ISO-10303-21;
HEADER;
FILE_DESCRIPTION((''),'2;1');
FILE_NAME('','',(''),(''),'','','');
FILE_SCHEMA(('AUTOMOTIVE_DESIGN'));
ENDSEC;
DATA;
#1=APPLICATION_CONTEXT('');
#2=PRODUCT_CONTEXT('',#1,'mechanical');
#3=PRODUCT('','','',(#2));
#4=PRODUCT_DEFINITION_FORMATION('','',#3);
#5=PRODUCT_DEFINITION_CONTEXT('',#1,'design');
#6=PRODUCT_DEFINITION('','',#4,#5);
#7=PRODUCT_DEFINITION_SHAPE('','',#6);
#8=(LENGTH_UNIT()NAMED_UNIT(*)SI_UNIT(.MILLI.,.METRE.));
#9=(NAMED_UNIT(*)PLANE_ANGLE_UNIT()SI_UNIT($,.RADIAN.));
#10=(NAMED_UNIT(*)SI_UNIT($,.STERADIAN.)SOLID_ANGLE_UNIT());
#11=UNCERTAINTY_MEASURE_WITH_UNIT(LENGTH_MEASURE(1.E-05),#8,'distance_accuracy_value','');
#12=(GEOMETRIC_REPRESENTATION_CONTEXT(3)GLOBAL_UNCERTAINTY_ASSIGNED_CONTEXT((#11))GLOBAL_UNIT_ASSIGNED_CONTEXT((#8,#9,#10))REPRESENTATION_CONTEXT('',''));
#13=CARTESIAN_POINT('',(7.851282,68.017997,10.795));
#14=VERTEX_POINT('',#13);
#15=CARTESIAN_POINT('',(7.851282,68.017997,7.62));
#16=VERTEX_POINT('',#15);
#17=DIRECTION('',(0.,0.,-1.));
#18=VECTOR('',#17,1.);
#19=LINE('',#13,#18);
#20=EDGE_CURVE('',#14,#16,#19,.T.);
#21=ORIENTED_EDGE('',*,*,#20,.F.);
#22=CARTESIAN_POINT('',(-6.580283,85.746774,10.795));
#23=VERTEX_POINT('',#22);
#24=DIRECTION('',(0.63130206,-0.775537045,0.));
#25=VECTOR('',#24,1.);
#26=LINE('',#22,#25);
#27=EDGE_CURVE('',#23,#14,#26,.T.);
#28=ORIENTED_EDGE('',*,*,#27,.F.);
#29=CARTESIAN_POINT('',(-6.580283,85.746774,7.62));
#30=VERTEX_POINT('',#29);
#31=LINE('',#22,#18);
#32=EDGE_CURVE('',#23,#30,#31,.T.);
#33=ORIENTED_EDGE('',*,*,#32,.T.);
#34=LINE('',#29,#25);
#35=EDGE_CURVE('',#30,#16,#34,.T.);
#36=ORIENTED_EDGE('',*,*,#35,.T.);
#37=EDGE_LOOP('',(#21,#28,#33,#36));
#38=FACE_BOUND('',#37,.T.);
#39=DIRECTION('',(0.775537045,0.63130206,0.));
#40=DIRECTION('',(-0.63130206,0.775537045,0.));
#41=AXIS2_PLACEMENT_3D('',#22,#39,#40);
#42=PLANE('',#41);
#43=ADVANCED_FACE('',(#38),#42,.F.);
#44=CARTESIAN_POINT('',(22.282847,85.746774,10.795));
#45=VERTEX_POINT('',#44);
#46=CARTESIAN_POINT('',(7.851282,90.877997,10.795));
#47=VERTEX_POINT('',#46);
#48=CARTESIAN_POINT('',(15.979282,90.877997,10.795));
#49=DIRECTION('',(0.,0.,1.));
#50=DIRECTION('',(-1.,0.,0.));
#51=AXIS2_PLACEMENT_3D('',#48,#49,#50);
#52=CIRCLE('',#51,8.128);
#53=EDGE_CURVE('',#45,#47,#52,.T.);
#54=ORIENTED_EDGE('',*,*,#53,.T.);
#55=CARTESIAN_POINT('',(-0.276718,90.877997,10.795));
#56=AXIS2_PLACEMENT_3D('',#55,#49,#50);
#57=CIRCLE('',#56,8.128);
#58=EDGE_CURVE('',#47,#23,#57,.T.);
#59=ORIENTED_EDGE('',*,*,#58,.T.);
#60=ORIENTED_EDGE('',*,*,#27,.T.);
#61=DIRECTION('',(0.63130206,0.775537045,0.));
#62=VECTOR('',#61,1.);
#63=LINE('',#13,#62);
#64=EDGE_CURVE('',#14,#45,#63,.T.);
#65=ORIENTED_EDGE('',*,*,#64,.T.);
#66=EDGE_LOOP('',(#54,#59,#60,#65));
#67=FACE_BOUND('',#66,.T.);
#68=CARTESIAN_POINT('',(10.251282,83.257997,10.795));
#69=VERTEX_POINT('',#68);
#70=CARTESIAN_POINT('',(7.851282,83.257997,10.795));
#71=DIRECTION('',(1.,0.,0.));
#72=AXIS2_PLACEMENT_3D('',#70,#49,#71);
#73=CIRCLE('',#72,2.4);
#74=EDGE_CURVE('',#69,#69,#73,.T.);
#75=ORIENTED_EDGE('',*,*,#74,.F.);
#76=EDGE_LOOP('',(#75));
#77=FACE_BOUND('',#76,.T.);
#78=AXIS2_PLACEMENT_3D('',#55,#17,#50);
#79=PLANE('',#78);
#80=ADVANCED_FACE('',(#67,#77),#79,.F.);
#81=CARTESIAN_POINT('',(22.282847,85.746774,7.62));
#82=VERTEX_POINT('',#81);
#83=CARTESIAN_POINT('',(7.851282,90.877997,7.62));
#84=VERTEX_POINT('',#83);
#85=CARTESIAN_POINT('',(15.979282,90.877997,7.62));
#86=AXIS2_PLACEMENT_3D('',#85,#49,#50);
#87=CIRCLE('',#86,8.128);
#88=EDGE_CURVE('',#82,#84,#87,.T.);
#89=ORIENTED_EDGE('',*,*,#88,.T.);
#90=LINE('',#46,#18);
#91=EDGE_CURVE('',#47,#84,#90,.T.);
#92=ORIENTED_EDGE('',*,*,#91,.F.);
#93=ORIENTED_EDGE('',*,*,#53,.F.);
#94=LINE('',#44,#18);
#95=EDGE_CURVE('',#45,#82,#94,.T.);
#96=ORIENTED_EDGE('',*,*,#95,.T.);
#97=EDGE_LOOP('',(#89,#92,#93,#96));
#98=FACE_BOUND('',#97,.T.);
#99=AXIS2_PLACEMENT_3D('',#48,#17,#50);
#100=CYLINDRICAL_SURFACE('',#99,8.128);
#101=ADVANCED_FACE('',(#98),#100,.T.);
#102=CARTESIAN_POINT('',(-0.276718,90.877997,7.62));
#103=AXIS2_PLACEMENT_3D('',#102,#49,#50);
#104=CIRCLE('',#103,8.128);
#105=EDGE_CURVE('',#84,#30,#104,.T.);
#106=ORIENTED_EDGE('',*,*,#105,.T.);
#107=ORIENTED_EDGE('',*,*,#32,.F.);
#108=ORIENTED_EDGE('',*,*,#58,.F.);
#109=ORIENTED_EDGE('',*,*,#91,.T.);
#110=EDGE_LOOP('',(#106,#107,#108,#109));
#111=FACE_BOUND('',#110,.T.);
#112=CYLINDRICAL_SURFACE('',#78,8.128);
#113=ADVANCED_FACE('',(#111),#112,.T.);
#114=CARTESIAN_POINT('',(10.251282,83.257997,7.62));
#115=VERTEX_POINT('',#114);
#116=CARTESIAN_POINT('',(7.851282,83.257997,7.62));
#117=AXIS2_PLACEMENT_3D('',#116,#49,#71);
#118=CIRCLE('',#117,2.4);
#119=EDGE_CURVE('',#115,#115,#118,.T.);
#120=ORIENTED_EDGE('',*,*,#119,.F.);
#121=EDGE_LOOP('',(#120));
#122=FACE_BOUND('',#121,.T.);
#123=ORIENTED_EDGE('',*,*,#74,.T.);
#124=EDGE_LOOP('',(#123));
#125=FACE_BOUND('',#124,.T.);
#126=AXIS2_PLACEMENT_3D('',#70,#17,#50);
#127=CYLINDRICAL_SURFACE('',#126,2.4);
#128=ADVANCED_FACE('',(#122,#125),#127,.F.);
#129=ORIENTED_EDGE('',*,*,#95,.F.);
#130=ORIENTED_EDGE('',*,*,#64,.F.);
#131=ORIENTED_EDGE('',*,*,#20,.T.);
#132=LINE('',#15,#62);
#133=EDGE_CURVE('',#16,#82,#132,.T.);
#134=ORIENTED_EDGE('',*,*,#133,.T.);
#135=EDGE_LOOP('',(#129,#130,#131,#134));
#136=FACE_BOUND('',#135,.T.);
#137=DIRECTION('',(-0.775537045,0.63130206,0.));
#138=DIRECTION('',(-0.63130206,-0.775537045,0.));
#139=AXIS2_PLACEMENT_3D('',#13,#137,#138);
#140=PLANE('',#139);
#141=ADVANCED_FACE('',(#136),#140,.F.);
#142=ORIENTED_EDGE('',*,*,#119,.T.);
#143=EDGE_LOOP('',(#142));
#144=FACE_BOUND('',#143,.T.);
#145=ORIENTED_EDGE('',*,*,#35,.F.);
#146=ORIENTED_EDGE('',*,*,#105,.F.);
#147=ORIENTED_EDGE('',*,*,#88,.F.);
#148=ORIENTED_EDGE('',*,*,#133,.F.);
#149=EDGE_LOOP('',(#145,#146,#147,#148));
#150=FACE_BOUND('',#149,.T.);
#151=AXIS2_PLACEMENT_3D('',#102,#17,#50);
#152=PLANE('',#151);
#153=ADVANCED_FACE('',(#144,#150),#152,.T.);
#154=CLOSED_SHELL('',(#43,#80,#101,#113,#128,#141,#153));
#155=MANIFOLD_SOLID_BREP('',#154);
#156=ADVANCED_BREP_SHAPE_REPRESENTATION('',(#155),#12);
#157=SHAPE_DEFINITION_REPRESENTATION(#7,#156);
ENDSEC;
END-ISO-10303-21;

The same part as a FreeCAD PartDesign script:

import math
import FreeCAD as App
import Part
import Sketcher
from FreeCAD import Vector
Q = App.Units.Quantity

doc = App.newDocument("Part")
params = doc.addObject("Spreadsheet::Sheet", "Params")
for row, (alias, value) in enumerate([
    ("sketch1_radius", "0.32 in"),
    ("sketch1_length", "0.9 in"),
    ("pad1_length", "0.125 in"),
], start=1):
    params.set(f"A{row}", alias)
    params.set(f"B{row}", "=" + value)
    params.setAlias(f"B{row}", alias)

body = doc.addObject("PartDesign::Body", "Body")

# Sketch on XY plane
sketch1 = body.newObject("Sketcher::SketchObject", "Sketch")
sketch1.AttachmentSupport = (doc.getObject("XY_Plane"), [""])
sketch1.MapMode = "FlatFace"
sketch1.AttachmentOffset = App.Placement(Vector(0, 0, 0.3 * 25.4), App.Rotation())
sketch1.addGeometry(Part.LineSegment(Vector(-6.580283, 85.746774, 0), Vector(7.851282, 68.017997, 0)), False)
sketch1.addGeometry(Part.LineSegment(Vector(7.851282, 68.017997, 0), Vector(22.282847, 85.746774, 0)), False)
sketch1.addGeometry(Part.ArcOfCircle(Part.Circle(Vector(15.979282, 90.877997, 0), Vector(0, 0, 1), 8.128), math.radians(-39.146252), math.radians(180)), False)
sketch1.addGeometry(Part.ArcOfCircle(Part.Circle(Vector(-0.276718, 90.877997, 0), Vector(0, 0, 1), 8.128), math.radians(0), math.radians(219.146252)), False)
sketch1.addGeometry(Part.Circle(Vector(7.851282, 83.257997, 0), Vector(0, 0, 1), 2.4), False)
sketch1.addConstraint(Sketcher.Constraint("Coincident", 0, 2, 1, 1))
sketch1.addConstraint(Sketcher.Constraint("Tangent", 1, 2, 2, 1))
sketch1.addConstraint(Sketcher.Constraint("Tangent", 2, 2, 3, 1))
sketch1.addConstraint(Sketcher.Constraint("Tangent", 3, 2, 0, 1))
sketch1.addConstraint(Sketcher.Constraint("Equal", 2, 3))
sketch1.addConstraint(Sketcher.Constraint("Horizontal", 2, 3, 3, 3))
sketch1.addConstraint(Sketcher.Constraint("Horizontal", 1, 2, 3, 2))
sketch1.addConstraint(Sketcher.Constraint("Vertical", 4, 3, 0, 2))
sketch1.addConstraint(Sketcher.Constraint("Radius", 2, Q("0.32 in")))
sketch1.addConstraint(Sketcher.Constraint("Distance", 0, Q("0.9 in")))
sketch1.addConstraint(Sketcher.Constraint("DistanceY", 4, 3, 2, 3, Q("0.3 in")))
sketch1.addConstraint(Sketcher.Constraint("Diameter", 4, 4.8))
sketch1.addConstraint(Sketcher.Constraint("DistanceX", -1, 1, 2, 3, 15.979282))
sketch1.addConstraint(Sketcher.Constraint("DistanceY", -1, 1, 2, 3, 90.877997))
sketch1.setExpression("Constraints[8]", "Params.sketch1_radius")
sketch1.setExpression("Constraints[9]", "Params.sketch1_length")
pad1 = body.newObject("PartDesign::Pad", "Pad")
pad1.Profile = sketch1
pad1.setExpression("Length", "Params.pad1_length")

doc.recompute()
